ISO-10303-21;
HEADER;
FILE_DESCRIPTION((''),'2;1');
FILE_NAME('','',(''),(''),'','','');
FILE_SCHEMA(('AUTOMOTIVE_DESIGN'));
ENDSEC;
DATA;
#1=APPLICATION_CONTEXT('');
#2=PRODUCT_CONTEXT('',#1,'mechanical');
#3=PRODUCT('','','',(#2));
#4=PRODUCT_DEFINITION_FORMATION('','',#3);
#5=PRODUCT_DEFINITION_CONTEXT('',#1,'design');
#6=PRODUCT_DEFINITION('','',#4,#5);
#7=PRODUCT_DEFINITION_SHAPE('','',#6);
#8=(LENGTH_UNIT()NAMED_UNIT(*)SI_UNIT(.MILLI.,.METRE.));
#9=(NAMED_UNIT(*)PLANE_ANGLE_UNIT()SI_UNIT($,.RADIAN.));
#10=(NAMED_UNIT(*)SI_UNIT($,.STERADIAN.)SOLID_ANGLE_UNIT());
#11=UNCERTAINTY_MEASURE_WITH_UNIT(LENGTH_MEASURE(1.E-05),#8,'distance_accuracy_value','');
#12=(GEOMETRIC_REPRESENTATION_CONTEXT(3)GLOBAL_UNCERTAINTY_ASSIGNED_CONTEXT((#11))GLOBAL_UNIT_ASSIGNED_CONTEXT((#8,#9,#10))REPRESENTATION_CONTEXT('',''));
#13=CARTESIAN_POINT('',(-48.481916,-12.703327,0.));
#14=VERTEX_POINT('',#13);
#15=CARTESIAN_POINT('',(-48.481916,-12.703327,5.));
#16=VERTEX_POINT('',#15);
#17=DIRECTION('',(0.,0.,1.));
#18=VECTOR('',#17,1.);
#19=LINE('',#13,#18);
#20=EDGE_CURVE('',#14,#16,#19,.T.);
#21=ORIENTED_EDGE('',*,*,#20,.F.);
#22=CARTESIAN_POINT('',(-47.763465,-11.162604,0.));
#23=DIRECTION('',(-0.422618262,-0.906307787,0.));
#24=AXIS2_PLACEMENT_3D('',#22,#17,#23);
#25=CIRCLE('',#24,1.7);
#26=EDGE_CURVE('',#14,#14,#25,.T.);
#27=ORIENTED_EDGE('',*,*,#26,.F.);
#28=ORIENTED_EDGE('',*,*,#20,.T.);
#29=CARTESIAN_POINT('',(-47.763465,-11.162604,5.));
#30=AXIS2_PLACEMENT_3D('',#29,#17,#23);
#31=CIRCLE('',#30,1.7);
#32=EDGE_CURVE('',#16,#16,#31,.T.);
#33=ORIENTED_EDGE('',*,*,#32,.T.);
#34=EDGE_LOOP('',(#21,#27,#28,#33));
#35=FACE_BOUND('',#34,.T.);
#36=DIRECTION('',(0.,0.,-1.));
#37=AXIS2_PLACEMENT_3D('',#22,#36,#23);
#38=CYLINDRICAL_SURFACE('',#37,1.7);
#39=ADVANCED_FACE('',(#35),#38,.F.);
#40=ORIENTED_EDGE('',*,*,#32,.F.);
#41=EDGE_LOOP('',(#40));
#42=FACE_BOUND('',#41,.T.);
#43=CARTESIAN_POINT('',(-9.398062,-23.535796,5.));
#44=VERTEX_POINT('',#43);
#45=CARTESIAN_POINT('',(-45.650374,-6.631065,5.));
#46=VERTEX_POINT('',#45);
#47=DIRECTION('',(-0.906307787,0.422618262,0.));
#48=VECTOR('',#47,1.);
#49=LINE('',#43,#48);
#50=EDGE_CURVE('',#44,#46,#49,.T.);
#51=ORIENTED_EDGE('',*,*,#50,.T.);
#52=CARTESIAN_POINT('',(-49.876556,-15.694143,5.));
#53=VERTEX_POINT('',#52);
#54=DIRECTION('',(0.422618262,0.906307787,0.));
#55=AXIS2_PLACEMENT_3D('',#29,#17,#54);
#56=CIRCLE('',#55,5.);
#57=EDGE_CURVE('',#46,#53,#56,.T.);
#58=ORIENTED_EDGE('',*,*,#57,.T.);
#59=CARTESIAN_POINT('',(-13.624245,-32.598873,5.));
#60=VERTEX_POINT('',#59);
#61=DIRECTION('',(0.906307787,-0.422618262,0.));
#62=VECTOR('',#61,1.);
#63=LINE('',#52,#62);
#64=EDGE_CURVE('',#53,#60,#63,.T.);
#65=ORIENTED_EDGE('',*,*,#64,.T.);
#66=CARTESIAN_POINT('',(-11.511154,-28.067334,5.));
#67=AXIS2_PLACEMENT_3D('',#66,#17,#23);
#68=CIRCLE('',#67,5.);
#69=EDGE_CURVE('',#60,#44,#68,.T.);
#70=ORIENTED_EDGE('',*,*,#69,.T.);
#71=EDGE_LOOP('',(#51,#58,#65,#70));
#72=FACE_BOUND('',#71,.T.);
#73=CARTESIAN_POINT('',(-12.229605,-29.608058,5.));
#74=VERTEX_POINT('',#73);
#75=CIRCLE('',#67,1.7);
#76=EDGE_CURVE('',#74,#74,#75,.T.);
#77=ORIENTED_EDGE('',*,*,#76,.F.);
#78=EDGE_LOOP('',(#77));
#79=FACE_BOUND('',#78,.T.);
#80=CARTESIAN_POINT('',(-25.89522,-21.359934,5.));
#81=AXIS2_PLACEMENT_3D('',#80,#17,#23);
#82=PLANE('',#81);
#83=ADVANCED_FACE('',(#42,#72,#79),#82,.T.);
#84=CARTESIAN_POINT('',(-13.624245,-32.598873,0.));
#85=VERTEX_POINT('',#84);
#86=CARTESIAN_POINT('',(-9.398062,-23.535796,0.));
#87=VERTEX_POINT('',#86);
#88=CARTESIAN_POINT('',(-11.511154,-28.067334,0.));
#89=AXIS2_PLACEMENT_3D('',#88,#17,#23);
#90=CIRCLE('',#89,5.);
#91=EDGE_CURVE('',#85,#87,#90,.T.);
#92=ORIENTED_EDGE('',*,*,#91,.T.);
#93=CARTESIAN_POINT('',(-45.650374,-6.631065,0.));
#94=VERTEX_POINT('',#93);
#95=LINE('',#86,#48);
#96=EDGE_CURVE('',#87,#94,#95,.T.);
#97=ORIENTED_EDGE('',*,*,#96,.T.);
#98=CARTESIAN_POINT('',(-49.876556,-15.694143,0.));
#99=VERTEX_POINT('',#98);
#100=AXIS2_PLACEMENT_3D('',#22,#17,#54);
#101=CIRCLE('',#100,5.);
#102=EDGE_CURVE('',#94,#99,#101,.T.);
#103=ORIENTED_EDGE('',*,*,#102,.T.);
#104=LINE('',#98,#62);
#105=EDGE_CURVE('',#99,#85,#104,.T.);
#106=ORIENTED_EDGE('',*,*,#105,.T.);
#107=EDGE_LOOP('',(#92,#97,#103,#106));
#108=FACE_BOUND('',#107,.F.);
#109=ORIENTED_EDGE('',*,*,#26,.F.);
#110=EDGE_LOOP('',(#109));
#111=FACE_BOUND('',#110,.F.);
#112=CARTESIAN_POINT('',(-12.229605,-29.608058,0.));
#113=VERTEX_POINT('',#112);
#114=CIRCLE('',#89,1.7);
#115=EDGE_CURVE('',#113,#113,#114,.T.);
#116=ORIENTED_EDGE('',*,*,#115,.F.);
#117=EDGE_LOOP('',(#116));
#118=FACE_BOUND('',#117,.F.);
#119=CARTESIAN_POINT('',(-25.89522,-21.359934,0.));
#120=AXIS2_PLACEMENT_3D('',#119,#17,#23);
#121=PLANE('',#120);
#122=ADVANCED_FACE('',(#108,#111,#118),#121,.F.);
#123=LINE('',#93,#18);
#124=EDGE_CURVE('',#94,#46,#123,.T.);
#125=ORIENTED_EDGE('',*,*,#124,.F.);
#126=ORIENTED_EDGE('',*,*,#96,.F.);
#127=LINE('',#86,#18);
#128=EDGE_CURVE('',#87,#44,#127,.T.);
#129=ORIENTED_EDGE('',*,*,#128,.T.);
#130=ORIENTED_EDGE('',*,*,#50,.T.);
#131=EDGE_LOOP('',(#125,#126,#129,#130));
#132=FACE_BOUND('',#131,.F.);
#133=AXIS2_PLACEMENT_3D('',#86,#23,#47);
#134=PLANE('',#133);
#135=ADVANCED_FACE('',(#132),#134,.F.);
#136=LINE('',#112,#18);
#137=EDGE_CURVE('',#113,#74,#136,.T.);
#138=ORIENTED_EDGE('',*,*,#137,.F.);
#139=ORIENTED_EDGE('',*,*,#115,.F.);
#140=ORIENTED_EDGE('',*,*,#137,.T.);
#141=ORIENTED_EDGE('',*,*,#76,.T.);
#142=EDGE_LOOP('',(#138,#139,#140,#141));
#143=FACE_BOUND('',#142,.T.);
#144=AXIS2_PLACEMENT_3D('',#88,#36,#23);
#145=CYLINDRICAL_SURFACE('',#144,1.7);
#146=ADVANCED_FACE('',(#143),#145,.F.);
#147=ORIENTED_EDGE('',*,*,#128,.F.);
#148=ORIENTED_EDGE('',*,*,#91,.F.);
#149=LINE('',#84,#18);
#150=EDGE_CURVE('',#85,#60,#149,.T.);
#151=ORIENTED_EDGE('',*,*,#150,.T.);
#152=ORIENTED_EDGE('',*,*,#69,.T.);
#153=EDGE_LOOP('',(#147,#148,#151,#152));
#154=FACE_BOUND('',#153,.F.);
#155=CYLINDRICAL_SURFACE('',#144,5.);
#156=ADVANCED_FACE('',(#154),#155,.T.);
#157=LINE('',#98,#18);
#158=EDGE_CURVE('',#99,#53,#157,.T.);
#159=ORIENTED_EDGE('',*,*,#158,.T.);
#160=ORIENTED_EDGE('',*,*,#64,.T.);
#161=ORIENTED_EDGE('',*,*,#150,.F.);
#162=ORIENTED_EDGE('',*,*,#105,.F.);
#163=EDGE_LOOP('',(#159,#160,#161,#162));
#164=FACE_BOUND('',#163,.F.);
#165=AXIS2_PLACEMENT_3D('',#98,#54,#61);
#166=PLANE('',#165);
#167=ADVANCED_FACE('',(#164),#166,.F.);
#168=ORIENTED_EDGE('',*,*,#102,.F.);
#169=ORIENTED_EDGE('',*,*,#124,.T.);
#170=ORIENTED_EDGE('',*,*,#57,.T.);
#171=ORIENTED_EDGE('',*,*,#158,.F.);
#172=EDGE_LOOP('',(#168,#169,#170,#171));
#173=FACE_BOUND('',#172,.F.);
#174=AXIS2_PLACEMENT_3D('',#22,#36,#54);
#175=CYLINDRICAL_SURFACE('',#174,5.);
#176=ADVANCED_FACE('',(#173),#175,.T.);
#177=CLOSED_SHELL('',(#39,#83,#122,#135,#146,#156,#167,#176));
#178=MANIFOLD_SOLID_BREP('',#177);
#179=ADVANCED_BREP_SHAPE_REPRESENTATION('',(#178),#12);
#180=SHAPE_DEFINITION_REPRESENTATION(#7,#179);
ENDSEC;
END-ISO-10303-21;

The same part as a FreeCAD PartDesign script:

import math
import FreeCAD as App
import Part
import Sketcher
from FreeCAD import Vector
Q = App.Units.Quantity

doc = App.newDocument("Part")
body = doc.addObject("PartDesign::Body", "Body")

sketch1 = body.newObject("Sketcher::SketchObject", "Sketch")
sketch1.AttachmentSupport = (doc.getObject("XY_Plane"), [""])
sketch1.MapMode = "FlatFace"
sketch1.addGeometry([
    Part.ArcOfCircle(Part.Circle(Vector(-47.8, 28.8, 0), Vector(0, 0, 1), 5), math.radians(0), math.radians(180)),
    Part.LineSegment(Vector(-52.8, 28.8, 0), Vector(-52.8, -11.2, 0)),
    Part.ArcOfCircle(Part.Circle(Vector(-47.8, -11.2, 0), Vector(0, 0, 1), 5), math.radians(180), math.radians(360)),
    Part.LineSegment(Vector(-42.8, -11.2, 0), Vector(-42.8, 28.8, 0)),
    Part.Circle(Vector(-47.8, -11.2, 0), Vector(0, 0, 1), 1.7),
    Part.Circle(Vector(-47.8, 28.8, 0), Vector(0, 0, 1), 1.7),
], False)
sketch1.addConstraint([
    Sketcher.Constraint("Tangent", 0, 2, 1, 1),
    Sketcher.Constraint("Tangent", 1, 2, 2, 1),
    Sketcher.Constraint("Tangent", 2, 2, 3, 1),
    Sketcher.Constraint("Tangent", 3, 2, 0, 1),
    Sketcher.Constraint("Vertical", 1),
    Sketcher.Constraint("Vertical", 3),
    Sketcher.Constraint("Coincident", 4, 3, 2, 3),
    Sketcher.Constraint("Coincident", 5, 3, 0, 3),
    Sketcher.Constraint("Equal", 4, 5),
    Sketcher.Constraint("Radius", 0, Q("5 mm")),
    Sketcher.Constraint("Diameter", 4, Q("3.4 mm")),
    Sketcher.Constraint("DistanceY", 1, 2, 1, 1, Q("40 mm")),
    Sketcher.Constraint("DistanceX", 0, 3, -1, 1, Q("47.763465 mm")),
    Sketcher.Constraint("DistanceY", -1, 1, 0, 3, Q("28.837396 mm")),
])
pad1 = body.newObject("PartDesign::Pad", "Pad")
pad1.Profile = sketch1
pad1.Length = 5
body2 = doc.addObject("PartDesign::Body", "Body001")
doc.recompute()

body.Placement = App.Placement(Vector(-57.832423, -59.168525, 0), App.Rotation(Vector(0, 0, 1), 245))
boolean = body2.newObject("PartDesign::Boolean", "Boolean")
boolean.Type = "Fuse"
boolean.addObjects([body])

doc.recompute()
